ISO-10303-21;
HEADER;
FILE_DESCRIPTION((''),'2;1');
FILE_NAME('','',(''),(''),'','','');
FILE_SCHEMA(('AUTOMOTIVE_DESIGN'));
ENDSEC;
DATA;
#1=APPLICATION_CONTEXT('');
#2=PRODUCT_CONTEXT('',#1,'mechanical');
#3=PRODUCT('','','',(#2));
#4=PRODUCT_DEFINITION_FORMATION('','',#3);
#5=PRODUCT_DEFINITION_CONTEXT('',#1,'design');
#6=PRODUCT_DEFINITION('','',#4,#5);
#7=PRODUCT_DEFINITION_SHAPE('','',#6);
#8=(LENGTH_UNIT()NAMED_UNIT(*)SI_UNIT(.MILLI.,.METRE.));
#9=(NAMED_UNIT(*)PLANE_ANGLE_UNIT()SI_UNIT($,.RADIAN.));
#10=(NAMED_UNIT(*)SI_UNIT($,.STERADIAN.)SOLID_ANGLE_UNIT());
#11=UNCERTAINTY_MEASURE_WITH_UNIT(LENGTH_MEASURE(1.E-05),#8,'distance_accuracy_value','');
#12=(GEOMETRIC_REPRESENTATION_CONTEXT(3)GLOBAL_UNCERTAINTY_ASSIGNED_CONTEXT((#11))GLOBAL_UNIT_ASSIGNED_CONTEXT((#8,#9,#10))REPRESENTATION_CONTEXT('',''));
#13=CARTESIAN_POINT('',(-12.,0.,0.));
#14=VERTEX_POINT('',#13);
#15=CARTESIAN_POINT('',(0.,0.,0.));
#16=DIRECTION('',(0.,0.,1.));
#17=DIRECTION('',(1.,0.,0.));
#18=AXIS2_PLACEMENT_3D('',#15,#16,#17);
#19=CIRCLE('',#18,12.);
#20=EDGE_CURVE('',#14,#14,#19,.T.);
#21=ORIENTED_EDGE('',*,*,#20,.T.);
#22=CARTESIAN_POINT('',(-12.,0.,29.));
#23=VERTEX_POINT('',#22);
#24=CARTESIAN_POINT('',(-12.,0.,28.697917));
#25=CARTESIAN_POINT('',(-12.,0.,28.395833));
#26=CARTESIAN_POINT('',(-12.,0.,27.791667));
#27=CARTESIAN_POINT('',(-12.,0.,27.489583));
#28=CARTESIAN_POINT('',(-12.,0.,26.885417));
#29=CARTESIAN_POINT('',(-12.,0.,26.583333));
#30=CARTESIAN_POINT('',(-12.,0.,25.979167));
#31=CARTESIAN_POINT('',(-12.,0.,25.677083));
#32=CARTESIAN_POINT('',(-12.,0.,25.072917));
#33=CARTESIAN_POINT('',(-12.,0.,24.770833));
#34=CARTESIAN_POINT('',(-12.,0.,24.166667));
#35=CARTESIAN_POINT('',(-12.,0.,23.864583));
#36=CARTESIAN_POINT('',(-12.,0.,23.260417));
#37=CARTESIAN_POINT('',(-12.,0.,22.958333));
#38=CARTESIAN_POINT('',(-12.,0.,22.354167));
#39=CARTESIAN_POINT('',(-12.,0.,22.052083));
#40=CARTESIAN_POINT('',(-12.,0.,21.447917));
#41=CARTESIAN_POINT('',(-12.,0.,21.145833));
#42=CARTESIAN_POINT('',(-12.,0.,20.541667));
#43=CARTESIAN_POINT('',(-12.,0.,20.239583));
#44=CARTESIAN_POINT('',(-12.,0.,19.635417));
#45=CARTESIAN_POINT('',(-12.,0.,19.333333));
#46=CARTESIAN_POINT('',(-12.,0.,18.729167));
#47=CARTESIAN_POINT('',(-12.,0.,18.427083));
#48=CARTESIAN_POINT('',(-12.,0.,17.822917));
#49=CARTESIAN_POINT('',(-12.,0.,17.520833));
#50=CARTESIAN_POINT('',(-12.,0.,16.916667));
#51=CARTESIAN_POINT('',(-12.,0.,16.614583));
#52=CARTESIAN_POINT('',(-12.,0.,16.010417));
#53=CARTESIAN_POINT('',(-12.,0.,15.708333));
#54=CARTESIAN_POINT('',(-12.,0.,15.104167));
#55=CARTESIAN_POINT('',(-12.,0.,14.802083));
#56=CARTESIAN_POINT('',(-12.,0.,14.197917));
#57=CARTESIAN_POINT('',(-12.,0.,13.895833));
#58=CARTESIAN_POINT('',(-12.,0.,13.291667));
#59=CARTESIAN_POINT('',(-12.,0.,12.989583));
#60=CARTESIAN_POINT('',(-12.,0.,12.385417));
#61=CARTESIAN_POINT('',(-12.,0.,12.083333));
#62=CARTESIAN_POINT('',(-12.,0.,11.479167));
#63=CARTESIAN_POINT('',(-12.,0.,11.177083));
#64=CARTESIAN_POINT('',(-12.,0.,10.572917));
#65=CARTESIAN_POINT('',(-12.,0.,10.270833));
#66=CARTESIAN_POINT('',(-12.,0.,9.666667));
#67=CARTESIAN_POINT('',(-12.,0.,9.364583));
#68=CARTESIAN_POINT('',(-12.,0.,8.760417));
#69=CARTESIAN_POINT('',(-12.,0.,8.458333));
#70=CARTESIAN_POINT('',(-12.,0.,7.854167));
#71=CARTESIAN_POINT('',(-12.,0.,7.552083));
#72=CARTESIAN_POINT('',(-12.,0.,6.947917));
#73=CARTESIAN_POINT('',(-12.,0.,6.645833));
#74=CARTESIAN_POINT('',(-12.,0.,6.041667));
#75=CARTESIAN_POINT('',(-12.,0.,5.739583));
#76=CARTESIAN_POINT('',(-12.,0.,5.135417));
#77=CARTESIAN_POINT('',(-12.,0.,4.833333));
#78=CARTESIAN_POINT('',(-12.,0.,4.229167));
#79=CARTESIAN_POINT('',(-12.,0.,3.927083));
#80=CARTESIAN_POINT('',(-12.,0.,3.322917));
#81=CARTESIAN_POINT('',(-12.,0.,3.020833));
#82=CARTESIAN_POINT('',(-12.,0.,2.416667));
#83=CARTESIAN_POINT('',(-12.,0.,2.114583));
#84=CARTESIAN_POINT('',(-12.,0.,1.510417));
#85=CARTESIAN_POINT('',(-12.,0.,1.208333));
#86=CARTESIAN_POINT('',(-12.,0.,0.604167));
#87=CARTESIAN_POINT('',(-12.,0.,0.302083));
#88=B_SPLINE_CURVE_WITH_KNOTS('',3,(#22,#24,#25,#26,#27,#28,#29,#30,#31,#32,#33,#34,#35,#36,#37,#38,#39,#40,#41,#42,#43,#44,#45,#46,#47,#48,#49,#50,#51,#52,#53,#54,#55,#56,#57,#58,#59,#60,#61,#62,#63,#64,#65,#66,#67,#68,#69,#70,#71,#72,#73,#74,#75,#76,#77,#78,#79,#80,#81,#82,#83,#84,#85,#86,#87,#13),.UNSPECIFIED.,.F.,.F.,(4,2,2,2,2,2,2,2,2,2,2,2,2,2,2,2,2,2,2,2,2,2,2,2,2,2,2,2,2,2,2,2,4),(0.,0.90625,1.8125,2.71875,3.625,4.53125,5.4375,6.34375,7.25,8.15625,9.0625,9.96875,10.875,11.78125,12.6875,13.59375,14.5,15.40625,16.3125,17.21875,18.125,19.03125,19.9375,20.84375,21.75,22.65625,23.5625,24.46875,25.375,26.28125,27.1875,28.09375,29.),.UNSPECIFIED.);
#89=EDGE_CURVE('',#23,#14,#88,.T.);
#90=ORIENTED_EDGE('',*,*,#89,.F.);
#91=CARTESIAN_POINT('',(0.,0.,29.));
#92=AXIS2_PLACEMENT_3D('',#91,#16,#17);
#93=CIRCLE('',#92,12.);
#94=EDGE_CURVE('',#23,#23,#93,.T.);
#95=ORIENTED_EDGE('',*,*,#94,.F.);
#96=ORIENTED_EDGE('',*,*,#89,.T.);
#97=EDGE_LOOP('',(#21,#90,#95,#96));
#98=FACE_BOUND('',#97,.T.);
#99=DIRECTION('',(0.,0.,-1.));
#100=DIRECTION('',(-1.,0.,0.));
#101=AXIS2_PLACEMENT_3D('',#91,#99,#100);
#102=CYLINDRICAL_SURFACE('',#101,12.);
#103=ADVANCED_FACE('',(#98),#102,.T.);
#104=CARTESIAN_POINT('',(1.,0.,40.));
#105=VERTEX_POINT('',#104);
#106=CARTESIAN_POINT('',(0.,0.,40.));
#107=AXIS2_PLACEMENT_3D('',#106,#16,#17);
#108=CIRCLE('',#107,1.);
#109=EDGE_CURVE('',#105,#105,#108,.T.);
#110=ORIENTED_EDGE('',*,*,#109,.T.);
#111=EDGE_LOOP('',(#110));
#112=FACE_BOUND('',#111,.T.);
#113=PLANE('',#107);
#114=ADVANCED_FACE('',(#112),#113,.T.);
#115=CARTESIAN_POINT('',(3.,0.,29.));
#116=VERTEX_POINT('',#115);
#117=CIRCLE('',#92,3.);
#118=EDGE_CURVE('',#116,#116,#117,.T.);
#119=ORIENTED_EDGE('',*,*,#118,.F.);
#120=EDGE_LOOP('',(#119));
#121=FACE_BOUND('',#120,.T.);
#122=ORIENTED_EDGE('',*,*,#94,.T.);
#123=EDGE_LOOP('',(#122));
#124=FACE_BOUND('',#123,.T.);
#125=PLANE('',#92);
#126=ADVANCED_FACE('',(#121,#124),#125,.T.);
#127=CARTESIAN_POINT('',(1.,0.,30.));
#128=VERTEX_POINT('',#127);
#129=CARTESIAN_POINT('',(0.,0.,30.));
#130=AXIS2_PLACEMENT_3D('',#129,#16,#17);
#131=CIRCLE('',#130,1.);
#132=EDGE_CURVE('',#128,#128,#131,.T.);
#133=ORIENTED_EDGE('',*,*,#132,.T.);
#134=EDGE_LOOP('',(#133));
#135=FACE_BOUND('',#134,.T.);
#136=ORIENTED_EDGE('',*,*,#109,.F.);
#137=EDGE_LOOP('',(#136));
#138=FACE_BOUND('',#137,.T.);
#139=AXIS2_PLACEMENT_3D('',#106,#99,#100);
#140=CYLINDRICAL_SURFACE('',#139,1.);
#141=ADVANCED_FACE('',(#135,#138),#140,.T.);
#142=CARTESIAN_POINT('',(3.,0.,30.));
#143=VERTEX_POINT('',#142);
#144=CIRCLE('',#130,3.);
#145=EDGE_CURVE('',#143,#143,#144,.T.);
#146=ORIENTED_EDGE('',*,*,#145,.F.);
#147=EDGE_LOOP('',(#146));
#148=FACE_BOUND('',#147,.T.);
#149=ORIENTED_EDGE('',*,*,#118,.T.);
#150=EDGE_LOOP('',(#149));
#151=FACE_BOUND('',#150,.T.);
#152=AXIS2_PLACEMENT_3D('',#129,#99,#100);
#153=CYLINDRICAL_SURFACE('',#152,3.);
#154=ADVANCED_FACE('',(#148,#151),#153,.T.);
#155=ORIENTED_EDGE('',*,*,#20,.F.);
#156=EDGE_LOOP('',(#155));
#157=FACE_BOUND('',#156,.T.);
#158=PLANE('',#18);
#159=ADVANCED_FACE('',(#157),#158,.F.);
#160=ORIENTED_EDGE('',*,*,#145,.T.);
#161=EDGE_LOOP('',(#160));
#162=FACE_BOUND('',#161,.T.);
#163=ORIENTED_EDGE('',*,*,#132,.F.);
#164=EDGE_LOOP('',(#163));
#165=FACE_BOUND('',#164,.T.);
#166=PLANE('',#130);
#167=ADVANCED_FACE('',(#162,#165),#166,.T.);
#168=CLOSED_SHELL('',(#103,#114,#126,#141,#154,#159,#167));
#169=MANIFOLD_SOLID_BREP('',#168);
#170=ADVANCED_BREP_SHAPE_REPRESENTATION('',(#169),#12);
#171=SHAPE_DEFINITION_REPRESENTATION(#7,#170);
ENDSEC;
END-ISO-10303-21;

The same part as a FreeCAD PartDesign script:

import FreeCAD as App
import Part
import Sketcher

doc = App.newDocument("Part")
body = doc.addObject("PartDesign::Body", "Body")

sketch1 = body.newObject("Sketcher::SketchObject", "Sketch")
sketch1.AttachmentSupport = (doc.getObject("XY_Plane"), [""])
sketch1.MapMode = "FlatFace"
sketch1.addGeometry(Part.Circle(App.Vector(0, 0, 0), App.Vector(0, 0, 1), 12), False)
sketch1.addConstraint(Sketcher.Constraint("Coincident", 0, 3, -1, 1))
sketch1.addConstraint(Sketcher.Constraint("Diameter", 0, 24.0))
pad1 = body.newObject("PartDesign::Pad", "Pad")
pad1.Profile = sketch1
pad1.Length = 29

sketch2 = body.newObject("Sketcher::SketchObject", "Sketch001")
sketch2.AttachmentSupport = (doc.getObject("XY_Plane"), [""])
sketch2.MapMode = "FlatFace"
sketch2.AttachmentOffset = App.Placement(App.Vector(0, 0, 29), App.Rotation())
sketch2.addGeometry(Part.Circle(App.Vector(0, 0, 0), App.Vector(0, 0, 1), 3), False)
sketch2.addConstraint(Sketcher.Constraint("Coincident", 0, 3, -1, 1))
sketch2.addConstraint(Sketcher.Constraint("Diameter", 0, 6.0))
pad2 = body.newObject("PartDesign::Pad", "Pad001")
pad2.Profile = sketch2
pad2.Length = 1

sketch3 = body.newObject("Sketcher::SketchObject", "Sketch002")
sketch3.AttachmentSupport = (doc.getObject("XY_Plane"), [""])
sketch3.MapMode = "FlatFace"
sketch3.AttachmentOffset = App.Placement(App.Vector(0, 0, 30), App.Rotation())
sketch3.addGeometry(Part.Circle(App.Vector(0, 0, 0), App.Vector(0, 0, 1), 1), False)
sketch3.addConstraint(Sketcher.Constraint("Coincident", 0, 3, -1, 1))
sketch3.addConstraint(Sketcher.Constraint("Diameter", 0, 2.0))
pad3 = body.newObject("PartDesign::Pad", "Pad002")
pad3.Profile = sketch3
pad3.Length = 10

doc.recompute()
